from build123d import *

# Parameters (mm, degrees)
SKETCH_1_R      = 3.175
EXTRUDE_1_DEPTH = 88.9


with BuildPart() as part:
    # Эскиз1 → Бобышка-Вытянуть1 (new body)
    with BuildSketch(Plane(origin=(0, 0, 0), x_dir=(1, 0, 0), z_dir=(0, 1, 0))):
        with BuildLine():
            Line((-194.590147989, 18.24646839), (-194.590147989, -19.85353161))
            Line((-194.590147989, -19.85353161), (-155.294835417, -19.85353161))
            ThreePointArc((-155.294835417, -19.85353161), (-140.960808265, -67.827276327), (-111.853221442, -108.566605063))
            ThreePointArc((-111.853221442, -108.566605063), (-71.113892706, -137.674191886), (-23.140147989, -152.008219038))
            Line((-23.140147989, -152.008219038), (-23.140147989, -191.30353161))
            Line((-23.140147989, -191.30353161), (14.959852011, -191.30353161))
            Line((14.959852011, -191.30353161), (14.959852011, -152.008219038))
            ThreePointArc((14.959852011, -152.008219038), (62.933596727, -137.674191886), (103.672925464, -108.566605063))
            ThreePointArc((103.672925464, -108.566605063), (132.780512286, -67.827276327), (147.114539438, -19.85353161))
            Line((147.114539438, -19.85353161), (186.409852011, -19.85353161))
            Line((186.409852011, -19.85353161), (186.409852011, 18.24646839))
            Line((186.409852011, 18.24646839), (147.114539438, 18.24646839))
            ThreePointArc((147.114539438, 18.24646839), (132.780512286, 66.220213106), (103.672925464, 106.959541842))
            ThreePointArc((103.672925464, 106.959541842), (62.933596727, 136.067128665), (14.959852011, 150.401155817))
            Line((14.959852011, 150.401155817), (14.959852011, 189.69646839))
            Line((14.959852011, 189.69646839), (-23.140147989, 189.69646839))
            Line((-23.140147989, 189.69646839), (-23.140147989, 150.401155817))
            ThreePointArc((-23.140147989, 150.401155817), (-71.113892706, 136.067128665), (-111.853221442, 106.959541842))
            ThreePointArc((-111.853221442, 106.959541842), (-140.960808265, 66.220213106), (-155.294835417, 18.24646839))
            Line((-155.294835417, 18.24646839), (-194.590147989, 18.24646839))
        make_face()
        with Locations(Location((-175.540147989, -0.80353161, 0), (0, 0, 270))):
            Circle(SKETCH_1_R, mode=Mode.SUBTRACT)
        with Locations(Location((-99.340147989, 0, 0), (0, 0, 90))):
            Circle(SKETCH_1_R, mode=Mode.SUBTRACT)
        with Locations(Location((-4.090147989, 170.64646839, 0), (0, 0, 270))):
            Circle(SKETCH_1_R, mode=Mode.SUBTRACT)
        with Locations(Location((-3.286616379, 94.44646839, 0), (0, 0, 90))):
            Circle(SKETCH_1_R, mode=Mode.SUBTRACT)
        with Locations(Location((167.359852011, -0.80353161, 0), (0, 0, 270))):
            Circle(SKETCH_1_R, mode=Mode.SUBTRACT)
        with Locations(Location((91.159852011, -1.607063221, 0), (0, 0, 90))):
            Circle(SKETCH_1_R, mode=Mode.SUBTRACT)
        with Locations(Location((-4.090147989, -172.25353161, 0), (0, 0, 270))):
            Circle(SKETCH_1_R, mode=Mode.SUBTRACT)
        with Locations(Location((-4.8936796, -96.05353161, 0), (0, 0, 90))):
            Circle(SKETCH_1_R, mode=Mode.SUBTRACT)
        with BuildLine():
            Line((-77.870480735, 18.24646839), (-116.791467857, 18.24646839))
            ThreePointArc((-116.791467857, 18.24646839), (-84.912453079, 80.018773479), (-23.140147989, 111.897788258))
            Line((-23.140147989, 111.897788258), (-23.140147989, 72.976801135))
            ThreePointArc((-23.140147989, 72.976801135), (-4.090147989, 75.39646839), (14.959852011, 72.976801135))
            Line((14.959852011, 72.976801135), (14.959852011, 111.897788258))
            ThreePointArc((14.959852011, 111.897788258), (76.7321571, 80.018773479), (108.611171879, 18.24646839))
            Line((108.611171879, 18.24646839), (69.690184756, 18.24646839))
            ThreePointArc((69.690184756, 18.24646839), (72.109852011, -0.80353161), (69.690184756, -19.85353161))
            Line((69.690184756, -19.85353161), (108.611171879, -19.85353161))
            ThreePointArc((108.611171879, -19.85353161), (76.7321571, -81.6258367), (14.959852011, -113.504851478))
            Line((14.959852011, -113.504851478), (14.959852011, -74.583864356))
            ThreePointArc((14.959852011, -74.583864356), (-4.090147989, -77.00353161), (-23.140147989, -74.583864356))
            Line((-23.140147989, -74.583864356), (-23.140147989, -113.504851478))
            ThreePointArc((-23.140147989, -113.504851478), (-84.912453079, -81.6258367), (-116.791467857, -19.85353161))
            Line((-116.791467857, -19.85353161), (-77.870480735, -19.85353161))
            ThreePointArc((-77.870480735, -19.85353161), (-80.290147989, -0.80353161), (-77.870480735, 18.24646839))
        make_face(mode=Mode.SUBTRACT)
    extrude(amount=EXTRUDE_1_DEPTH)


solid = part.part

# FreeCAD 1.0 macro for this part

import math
import FreeCAD as App
import Part
import Sketcher
from FreeCAD import Vector
Q = App.Units.Quantity

doc = App.newDocument("Part")
params = doc.addObject("Spreadsheet::Sheet", "Params")
for row, (alias, value) in enumerate([
    ("sketch1_radius", "6 in"),
    ("sketch1_radius2", "3 in"),
    ("sketch1_radius3", "4.5 in"),
    ("sketch1_diameter", "0.25 in"),
    ("sketch1_width", "1.5 in"),
    ("pad1_length", "3.5 in"),
], start=1):
    params.set(f"A{row}", alias)
    params.set(f"B{row}", "=" + value)
    params.setAlias(f"B{row}", alias)

body = doc.addObject("PartDesign::Body", "Body")

# Sketch on XZ plane
sketch1 = body.newObject("Sketcher::SketchObject", "Sketch")
sketch1.AttachmentSupport = (doc.getObject("XZ_Plane"), [""])
sketch1.MapMode = "FlatFace"
sketch1.addGeometry([
    Part.LineSegment(Vector(-194.590148, -18.246468, 0), Vector(-194.590148, 19.853532, 0)),  # 0
    Part.LineSegment(Vector(-194.590148, 19.853532, 0), Vector(-155.294835, 19.853532, 0)),  # 1
    Part.ArcOfCircle(Part.Circle(Vector(-4.090148, 0.803532, 0), Vector(0, 0, 1), 152.4), math.radians(135), math.radians(172.819244)),  # 2
    Part.ArcOfCircle(Part.Circle(Vector(-4.090148, 0.803532, 0), Vector(0, 0, 1), 152.4), math.radians(97.180756), math.radians(135)),  # 3
    Part.LineSegment(Vector(-23.140148, 152.008219, 0), Vector(-23.140148, 191.303532, 0)),  # 4
    Part.LineSegment(Vector(-23.140148, 191.303532, 0), Vector(14.959852, 191.303532, 0)),  # 5
    Part.LineSegment(Vector(14.959852, 191.303532, 0), Vector(14.959852, 152.008219, 0)),  # 6
    Part.ArcOfCircle(Part.Circle(Vector(-4.090148, 0.803532, 0), Vector(0, 0, 1), 152.4), math.radians(45), math.radians(82.819244)),  # 7
    Part.ArcOfCircle(Part.Circle(Vector(-4.090148, 0.803532, 0), Vector(0, 0, 1), 152.4), math.radians(7.180756), math.radians(45)),  # 8
    Part.LineSegment(Vector(147.114539, 19.853532, 0), Vector(186.409852, 19.853532, 0)),  # 9
    Part.LineSegment(Vector(186.409852, 19.853532, 0), Vector(186.409852, -18.246468, 0)),  # 10
    Part.LineSegment(Vector(186.409852, -18.246468, 0), Vector(147.114539, -18.246468, 0)),  # 11
    Part.ArcOfCircle(Part.Circle(Vector(-4.090148, 0.803532, 0), Vector(0, 0, 1), 152.4), math.radians(-82.819244), math.radians(-7.180756)),  # 12
    Part.LineSegment(Vector(14.959852, -150.401156, 0), Vector(14.959852, -189.696468, 0)),  # 13
    Part.LineSegment(Vector(14.959852, -189.696468, 0), Vector(-23.140148, -189.696468, 0)),  # 14
    Part.LineSegment(Vector(-23.140148, -189.696468, 0), Vector(-23.140148, -150.401156, 0)),  # 15
    Part.ArcOfCircle(Part.Circle(Vector(-4.090148, 0.803532, 0), Vector(0, 0, 1), 152.4), math.radians(-135), math.radians(-97.180756)),  # 16
    Part.ArcOfCircle(Part.Circle(Vector(-4.090148, 0.803532, 0), Vector(0, 0, 1), 152.4), math.radians(-172.819244), math.radians(-135)),  # 17
    Part.LineSegment(Vector(-155.294835, -18.246468, 0), Vector(-194.590148, -18.246468, 0)),  # 18
    Part.Circle(Vector(-4.89368, 96.053532, 0), Vector(0, 0, 1), 3.175),  # 19
    Part.Circle(Vector(-4.090148, 172.253532, 0), Vector(0, 0, 1), 3.175),  # 20
    Part.Circle(Vector(91.159852, 1.607063, 0), Vector(0, 0, 1), 3.175),  # 21
    Part.Circle(Vector(-175.540148, 0.803532, 0), Vector(0, 0, 1), 3.175),  # 22
    Part.Circle(Vector(-99.340148, 0, 0), Vector(0, 0, 1), 3.175),  # 23
    Part.ArcOfCircle(Part.Circle(Vector(-4.090148, 0.803532, 0), Vector(0, 0, 1), 76.2), math.radians(165.522488), math.radians(194.477512)),  # 24
    Part.LineSegment(Vector(-77.870481, -18.246468, 0), Vector(-116.791468, -18.246468, 0)),  # 25
    Part.ArcOfCircle(Part.Circle(Vector(-4.090148, 0.803532, 0), Vector(0, 0, 1), 114.3), math.radians(-170.405932), math.radians(-99.594068)),  # 26
    Part.LineSegment(Vector(-23.140148, -111.897788, 0), Vector(-23.140148, -72.976801, 0)),  # 27
    Part.ArcOfCircle(Part.Circle(Vector(-4.090148, 0.803532, 0), Vector(0, 0, 1), 76.2), math.radians(-104.477512), math.radians(-75.522488)),  # 28
    Part.LineSegment(Vector(14.959852, -72.976801, 0), Vector(14.959852, -111.897788, 0)),  # 29
    Part.ArcOfCircle(Part.Circle(Vector(-4.090148, 0.803532, 0), Vector(0, 0, 1), 114.3), math.radians(-80.405932), math.radians(-9.594068)),  # 30
    Part.LineSegment(Vector(108.611172, -18.246468, 0), Vector(69.690185, -18.246468, 0)),  # 31
    Part.ArcOfCircle(Part.Circle(Vector(-4.090148, 0.803532, 0), Vector(0, 0, 1), 76.2), math.radians(-14.477512), math.radians(14.477512)),  # 32
    Part.LineSegment(Vector(69.690185, 19.853532, 0), Vector(108.611172, 19.853532, 0)),  # 33
    Part.ArcOfCircle(Part.Circle(Vector(-4.090148, 0.803532, 0), Vector(0, 0, 1), 114.3), math.radians(9.594068), math.radians(80.405932)),  # 34
    Part.LineSegment(Vector(14.959852, 113.504851, 0), Vector(14.959852, 74.583864, 0)),  # 35
    Part.ArcOfCircle(Part.Circle(Vector(-4.090148, 0.803532, 0), Vector(0, 0, 1), 76.2), math.radians(75.522488), math.radians(104.477512)),  # 36
    Part.LineSegment(Vector(-23.140148, 74.583864, 0), Vector(-23.140148, 113.504851, 0)),  # 37
    Part.ArcOfCircle(Part.Circle(Vector(-4.090148, 0.803532, 0), Vector(0, 0, 1), 114.3), math.radians(99.594068), math.radians(170.405932)),  # 38
    Part.LineSegment(Vector(-116.791468, 19.853532, 0), Vector(-77.870481, 19.853532, 0)),  # 39
    Part.Circle(Vector(167.359852, 0.803532, 0), Vector(0, 0, 1), 3.175),  # 40
    Part.Circle(Vector(-3.286616, -94.446468, 0), Vector(0, 0, 1), 3.175),  # 41
    Part.Circle(Vector(-4.090148, -170.646468, 0), Vector(0, 0, 1), 3.175),  # 42
], False)
sketch1.addConstraint([
    Sketcher.Constraint("Coincident", 0, 2, 1, 1),
    Sketcher.Constraint("Coincident", 1, 2, 2, 2),
    Sketcher.Constraint("Tangent", 2, 1, 3, 2),
    Sketcher.Constraint("Coincident", 3, 1, 4, 1),
    Sketcher.Constraint("Coincident", 4, 2, 5, 1),
    Sketcher.Constraint("Coincident", 5, 2, 6, 1),
    Sketcher.Constraint("Coincident", 6, 2, 7, 2),
    Sketcher.Constraint("Tangent", 7, 1, 8, 2),
    Sketcher.Constraint("Coincident", 8, 1, 9, 1),
    Sketcher.Constraint("Coincident", 9, 2, 10, 1),
    Sketcher.Constraint("Coincident", 10, 2, 11, 1),
    Sketcher.Constraint("Coincident", 11, 2, 12, 2),
    Sketcher.Constraint("Coincident", 12, 1, 13, 1),
    Sketcher.Constraint("Coincident", 13, 2, 14, 1),
    Sketcher.Constraint("Coincident", 14, 2, 15, 1),
    Sketcher.Constraint("Coincident", 15, 2, 16, 2),
    Sketcher.Constraint("Tangent", 16, 1, 17, 2),
    Sketcher.Constraint("Coincident", 17, 1, 18, 1),
    Sketcher.Constraint("Coincident", 18, 2, 0, 1),
    Sketcher.Constraint("Coincident", 24, 2, 25, 1),
    Sketcher.Constraint("Coincident", 25, 2, 26, 1),
    Sketcher.Constraint("Coincident", 26, 2, 27, 1),
    Sketcher.Constraint("Coincident", 27, 2, 28, 1),
    Sketcher.Constraint("Coincident", 28, 2, 29, 1),
    Sketcher.Constraint("Coincident", 29, 2, 30, 1),
    Sketcher.Constraint("Coincident", 30, 2, 31, 1),
    Sketcher.Constraint("Coincident", 31, 2, 32, 1),
    Sketcher.Constraint("Coincident", 32, 2, 33, 1),
    Sketcher.Constraint("Coincident", 33, 2, 34, 1),
    Sketcher.Constraint("Coincident", 34, 2, 35, 1),
    Sketcher.Constraint("Coincident", 35, 2, 36, 1),
    Sketcher.Constraint("Coincident", 36, 2, 37, 1),
    Sketcher.Constraint("Coincident", 37, 2, 38, 1),
    Sketcher.Constraint("Coincident", 38, 2, 39, 1),
    Sketcher.Constraint("Coincident", 39, 2, 24, 1),
    Sketcher.Constraint("Vertical", 0),
    Sketcher.Constraint("Horizontal", 1),
    Sketcher.Constraint("Vertical", 4),
    Sketcher.Constraint("Horizontal", 5),
    Sketcher.Constraint("Vertical", 6),
    Sketcher.Constraint("Horizontal", 9),
    Sketcher.Constraint("Vertical", 10),
    Sketcher.Constraint("Horizontal", 11),
    Sketcher.Constraint("Vertical", 13),
    Sketcher.Constraint("Horizontal", 14),
    Sketcher.Constraint("Vertical", 15),
    Sketcher.Constraint("Horizontal", 18),
    Sketcher.Constraint("Horizontal", 25),
    Sketcher.Constraint("Vertical", 27),
    Sketcher.Constraint("Vertical", 29),
    Sketcher.Constraint("Horizontal", 31),
    Sketcher.Constraint("Horizontal", 33),
    Sketcher.Constraint("Vertical", 35),
    Sketcher.Constraint("Vertical", 37),
    Sketcher.Constraint("Horizontal", 39),
    Sketcher.Constraint("Coincident", 7, 3, 2, 3),
    Sketcher.Constraint("Coincident", 12, 3, 2, 3),
    Sketcher.Constraint("Coincident", 16, 3, 2, 3),
    Sketcher.Constraint("Coincident", 24, 3, 2, 3),
    Sketcher.Constraint("Coincident", 26, 3, 2, 3),
    Sketcher.Constraint("Coincident", 28, 3, 2, 3),
    Sketcher.Constraint("Coincident", 30, 3, 2, 3),
    Sketcher.Constraint("Coincident", 32, 3, 2, 3),
    Sketcher.Constraint("Coincident", 34, 3, 2, 3),
    Sketcher.Constraint("Coincident", 36, 3, 2, 3),
    Sketcher.Constraint("Coincident", 38, 3, 2, 3),
    Sketcher.Constraint("Equal", 2, 3),
    Sketcher.Constraint("Equal", 3, 7),
    Sketcher.Constraint("Equal", 7, 8),
    Sketcher.Constraint("Equal", 8, 12),
    Sketcher.Constraint("Equal", 12, 16),
    Sketcher.Constraint("Equal", 16, 17),
    Sketcher.Constraint("Equal", 19, 20),
    Sketcher.Constraint("Equal", 20, 21),
    Sketcher.Constraint("Equal", 21, 22),
    Sketcher.Constraint("Equal", 22, 23),
    Sketcher.Constraint("Equal", 24, 28),
    Sketcher.Constraint("Equal", 26, 30),
    Sketcher.Constraint("Equal", 28, 32),
    Sketcher.Constraint("Equal", 30, 34),
    Sketcher.Constraint("Equal", 32, 36),
    Sketcher.Constraint("Equal", 34, 38),
    Sketcher.Constraint("Equal", 23, 40),
    Sketcher.Constraint("Equal", 40, 41),
    Sketcher.Constraint("Equal", 41, 42),
    Sketcher.Constraint("PointOnObject", 23, 3, -1),
    Sketcher.Constraint("Horizontal", 17, 3, 22, 3),
    Sketcher.Constraint("Horizontal", 38, 3, 40, 3),
    Sketcher.Constraint("Horizontal", 3, 1, 6, 2),
    Sketcher.Constraint("Horizontal", 2, 1, 7, 1),
    Sketcher.Constraint("Horizontal", 1, 2, 8, 1),
    Sketcher.Constraint("Horizontal", 12, 1, 15, 2),
    Sketcher.Constraint("Horizontal", 11, 2, 17, 1),
    Sketcher.Constraint("Horizontal", 18, 2, 24, 2),
    Sketcher.Constraint("Horizontal", 27, 2, 28, 2),
    Sketcher.Constraint("Horizontal", 25, 2, 30, 2),
    Sketcher.Constraint("Horizontal", 9, 2, 32, 2),
    Sketcher.Constraint("Horizontal", 35, 2, 36, 2),
    Sketcher.Constraint("Horizontal", 33, 2, 38, 2),
    Sketcher.Constraint("Vertical", 17, 3, 20, 3),
    Sketcher.Constraint("Vertical", 38, 3, 42, 3),
    Sketcher.Constraint("Vertical", 8, 1, 11, 2),
    Sketcher.Constraint("Vertical", 6, 2, 12, 1),
    Sketcher.Constraint("Vertical", 2, 1, 16, 1),
    Sketcher.Constraint("Vertical", 15, 2, 26, 2),
    Sketcher.Constraint("Vertical", 29, 2, 34, 2),
    Sketcher.Constraint("Equal", 1, 9),
    Sketcher.Constraint("Equal", 14, 0),
    Sketcher.Constraint("Equal", 18, 4),
    Sketcher.Constraint("Equal", 6, 13),
    Sketcher.Constraint("Radius", 2, Q("6 in")),
    Sketcher.Constraint("Radius", 24, Q("3 in")),
    Sketcher.Constraint("Radius", 26, Q("4.5 in")),
    Sketcher.Constraint("Diameter", 19, Q("0.25 in")),
    Sketcher.Constraint("DistanceX", 5, 1, 5, 2, Q("1.5 in")),
    Sketcher.Constraint("DistanceY", 19, 3, 20, 3, Q("3 in")),
    Sketcher.Constraint("DistanceX", 22, 3, 23, 3, Q("3 in")),
    Sketcher.Constraint("DistanceX", 21, 3, 40, 3, Q("3 in")),
    Sketcher.Constraint("DistanceY", 42, 3, 41, 3, Q("3 in")),
    Sketcher.Constraint("DistanceX", 0, 2, 2, 3, Q("7.5 in")),
    Sketcher.Constraint("DistanceY", 3, 3, 19, 3, Q("3.75 in")),
    Sketcher.Constraint("DistanceX", 8, 3, 21, 3, Q("3.75 in")),
    Sketcher.Constraint("DistanceX", 22, 3, 2, 3, Q("6.75 in")),
    Sketcher.Constraint("DistanceY", 41, 3, 36, 3, Q("3.75 in")),
    Sketcher.Constraint("DistanceY", 27, 2, -1, 1, Q("72.976801 mm")),
    Sketcher.Constraint("DistanceX", 19, 3, -1, 1, Q("4.89368 mm")),
    Sketcher.Constraint("DistanceX", 2, 1, -1, 1, Q("111.853221 mm")),
    Sketcher.Constraint("DistanceX", -1, 1, 8, 1, Q("147.114539 mm")),
    Sketcher.Constraint("DistanceY", 8, 3, 21, 3, Q("0.803532 mm")),
    Sketcher.Constraint("DistanceX", 36, 3, 41, 3, Q("0.803532 mm")),
])
sketch1.setExpression("Constraints[110]", "Params.sketch1_radius")
sketch1.setExpression("Constraints[111]", "Params.sketch1_radius2")
sketch1.setExpression("Constraints[112]", "Params.sketch1_radius3")
sketch1.setExpression("Constraints[113]", "Params.sketch1_diameter")
sketch1.setExpression("Constraints[114]", "Params.sketch1_width")
pad1 = body.newObject("PartDesign::Pad", "Pad")
pad1.Profile = sketch1
pad1.setExpression("Length", "Params.pad1_length")
pad1.Reversed = True

doc.recompute()
